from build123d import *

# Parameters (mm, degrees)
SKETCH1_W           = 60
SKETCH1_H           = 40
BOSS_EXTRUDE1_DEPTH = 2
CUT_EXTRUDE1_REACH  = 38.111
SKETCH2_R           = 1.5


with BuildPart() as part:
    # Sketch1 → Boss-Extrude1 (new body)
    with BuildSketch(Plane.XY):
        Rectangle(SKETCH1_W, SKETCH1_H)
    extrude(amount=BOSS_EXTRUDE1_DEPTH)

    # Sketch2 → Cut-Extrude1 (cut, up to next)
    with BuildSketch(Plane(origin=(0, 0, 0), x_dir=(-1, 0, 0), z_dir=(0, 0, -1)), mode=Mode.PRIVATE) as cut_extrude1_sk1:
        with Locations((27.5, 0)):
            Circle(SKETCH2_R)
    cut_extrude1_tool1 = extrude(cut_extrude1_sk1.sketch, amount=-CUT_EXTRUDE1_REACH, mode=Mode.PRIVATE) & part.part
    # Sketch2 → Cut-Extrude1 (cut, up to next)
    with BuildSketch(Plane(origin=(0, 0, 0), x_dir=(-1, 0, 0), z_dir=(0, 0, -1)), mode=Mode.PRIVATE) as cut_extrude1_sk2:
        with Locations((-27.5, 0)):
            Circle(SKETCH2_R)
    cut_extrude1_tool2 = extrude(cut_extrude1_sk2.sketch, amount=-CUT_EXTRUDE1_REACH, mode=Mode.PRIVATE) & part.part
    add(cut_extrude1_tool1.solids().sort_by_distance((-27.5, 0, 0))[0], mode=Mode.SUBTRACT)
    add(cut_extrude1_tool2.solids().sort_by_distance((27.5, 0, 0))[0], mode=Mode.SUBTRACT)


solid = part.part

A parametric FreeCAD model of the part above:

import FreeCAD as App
import Part
import Sketcher
Q = App.Units.Quantity

doc = App.newDocument("Part")
body = doc.addObject("PartDesign::Body", "Body")

sketch1 = doc.addObject("Sketcher::SketchObject", "Sketch")
body.addObject(sketch1)
sketch1.AttachmentSupport = (doc.XY_Plane, [""])
sketch1.MapMode = "FlatFace"
sketch1.addGeometry([
    Part.LineSegment(App.Vector(-30, 20, 0), App.Vector(-30, -20, 0)),
    Part.LineSegment(App.Vector(-30, -20, 0), App.Vector(30, -20, 0)),
    Part.LineSegment(App.Vector(30, -20, 0), App.Vector(30, 20, 0)),
    Part.LineSegment(App.Vector(30, 20, 0), App.Vector(-30, 20, 0)),
], False)
sketch1.addConstraint([
    Sketcher.Constraint("Coincident", 0, 2, 1, 1),
    Sketcher.Constraint("Coincident", 1, 2, 2, 1),
    Sketcher.Constraint("Coincident", 2, 2, 3, 1),
    Sketcher.Constraint("Coincident", 3, 2, 0, 1),
    Sketcher.Constraint("Vertical", 0),
    Sketcher.Constraint("Horizontal", 1),
    Sketcher.Constraint("Vertical", 2),
    Sketcher.Constraint("Horizontal", 3),
    Sketcher.Constraint("Symmetric", 0, 2, 2, 2, -1, 1),
    Sketcher.Constraint("DistanceX", 1, 1, 1, 2, Q("60 mm")),
    Sketcher.Constraint("DistanceY", 0, 2, 0, 1, Q("40 mm")),
])
pad1 = doc.addObject("PartDesign::Pad", "Pad")
body.addObject(pad1)
pad1.Profile = sketch1
pad1.Length = 2

sketch2 = doc.addObject("Sketcher::SketchObject", "Sketch001")
body.addObject(sketch2)
sketch2.AttachmentSupport = (doc.XY_Plane, [""])
sketch2.MapMode = "FlatFace"
sketch2.addGeometry(Part.Circle(App.Vector(-27.5, 0, 0), App.Vector(0, 0, 1), 1.5), False)
sketch2.addConstraint([
    Sketcher.Constraint("PointOnObject", 0, 3, -1),
    Sketcher.Constraint("Diameter", 0, Q("3 mm")),
    Sketcher.Constraint("DistanceX", 0, 3, -1, 1, Q("27.5 mm")),
])
pocket1 = doc.addObject("PartDesign::Pocket", "Pocket")
body.addObject(pocket1)
pocket1.Profile = sketch2
pocket1.Type = "UpToFirst"
pocket1.Reversed = True

sketch3 = doc.addObject("Sketcher::SketchObject", "Sketch002")
body.addObject(sketch3)
sketch3.AttachmentSupport = (doc.XY_Plane, [""])
sketch3.MapMode = "FlatFace"
sketch3.addGeometry(Part.Circle(App.Vector(27.5, 0, 0), App.Vector(0, 0, 1), 1.5), False)
sketch3.addConstraint([
    Sketcher.Constraint("PointOnObject", 0, 3, -1),
    Sketcher.Constraint("Diameter", 0, Q("3 mm")),
    Sketcher.Constraint("DistanceX", -1, 1, 0, 3, Q("27.5 mm")),
])
pocket2 = doc.addObject("PartDesign::Pocket", "Pocket001")
body.addObject(pocket2)
pocket2.Profile = sketch3
pocket2.Type = "UpToFirst"
pocket2.Reversed = True

doc.recompute()
